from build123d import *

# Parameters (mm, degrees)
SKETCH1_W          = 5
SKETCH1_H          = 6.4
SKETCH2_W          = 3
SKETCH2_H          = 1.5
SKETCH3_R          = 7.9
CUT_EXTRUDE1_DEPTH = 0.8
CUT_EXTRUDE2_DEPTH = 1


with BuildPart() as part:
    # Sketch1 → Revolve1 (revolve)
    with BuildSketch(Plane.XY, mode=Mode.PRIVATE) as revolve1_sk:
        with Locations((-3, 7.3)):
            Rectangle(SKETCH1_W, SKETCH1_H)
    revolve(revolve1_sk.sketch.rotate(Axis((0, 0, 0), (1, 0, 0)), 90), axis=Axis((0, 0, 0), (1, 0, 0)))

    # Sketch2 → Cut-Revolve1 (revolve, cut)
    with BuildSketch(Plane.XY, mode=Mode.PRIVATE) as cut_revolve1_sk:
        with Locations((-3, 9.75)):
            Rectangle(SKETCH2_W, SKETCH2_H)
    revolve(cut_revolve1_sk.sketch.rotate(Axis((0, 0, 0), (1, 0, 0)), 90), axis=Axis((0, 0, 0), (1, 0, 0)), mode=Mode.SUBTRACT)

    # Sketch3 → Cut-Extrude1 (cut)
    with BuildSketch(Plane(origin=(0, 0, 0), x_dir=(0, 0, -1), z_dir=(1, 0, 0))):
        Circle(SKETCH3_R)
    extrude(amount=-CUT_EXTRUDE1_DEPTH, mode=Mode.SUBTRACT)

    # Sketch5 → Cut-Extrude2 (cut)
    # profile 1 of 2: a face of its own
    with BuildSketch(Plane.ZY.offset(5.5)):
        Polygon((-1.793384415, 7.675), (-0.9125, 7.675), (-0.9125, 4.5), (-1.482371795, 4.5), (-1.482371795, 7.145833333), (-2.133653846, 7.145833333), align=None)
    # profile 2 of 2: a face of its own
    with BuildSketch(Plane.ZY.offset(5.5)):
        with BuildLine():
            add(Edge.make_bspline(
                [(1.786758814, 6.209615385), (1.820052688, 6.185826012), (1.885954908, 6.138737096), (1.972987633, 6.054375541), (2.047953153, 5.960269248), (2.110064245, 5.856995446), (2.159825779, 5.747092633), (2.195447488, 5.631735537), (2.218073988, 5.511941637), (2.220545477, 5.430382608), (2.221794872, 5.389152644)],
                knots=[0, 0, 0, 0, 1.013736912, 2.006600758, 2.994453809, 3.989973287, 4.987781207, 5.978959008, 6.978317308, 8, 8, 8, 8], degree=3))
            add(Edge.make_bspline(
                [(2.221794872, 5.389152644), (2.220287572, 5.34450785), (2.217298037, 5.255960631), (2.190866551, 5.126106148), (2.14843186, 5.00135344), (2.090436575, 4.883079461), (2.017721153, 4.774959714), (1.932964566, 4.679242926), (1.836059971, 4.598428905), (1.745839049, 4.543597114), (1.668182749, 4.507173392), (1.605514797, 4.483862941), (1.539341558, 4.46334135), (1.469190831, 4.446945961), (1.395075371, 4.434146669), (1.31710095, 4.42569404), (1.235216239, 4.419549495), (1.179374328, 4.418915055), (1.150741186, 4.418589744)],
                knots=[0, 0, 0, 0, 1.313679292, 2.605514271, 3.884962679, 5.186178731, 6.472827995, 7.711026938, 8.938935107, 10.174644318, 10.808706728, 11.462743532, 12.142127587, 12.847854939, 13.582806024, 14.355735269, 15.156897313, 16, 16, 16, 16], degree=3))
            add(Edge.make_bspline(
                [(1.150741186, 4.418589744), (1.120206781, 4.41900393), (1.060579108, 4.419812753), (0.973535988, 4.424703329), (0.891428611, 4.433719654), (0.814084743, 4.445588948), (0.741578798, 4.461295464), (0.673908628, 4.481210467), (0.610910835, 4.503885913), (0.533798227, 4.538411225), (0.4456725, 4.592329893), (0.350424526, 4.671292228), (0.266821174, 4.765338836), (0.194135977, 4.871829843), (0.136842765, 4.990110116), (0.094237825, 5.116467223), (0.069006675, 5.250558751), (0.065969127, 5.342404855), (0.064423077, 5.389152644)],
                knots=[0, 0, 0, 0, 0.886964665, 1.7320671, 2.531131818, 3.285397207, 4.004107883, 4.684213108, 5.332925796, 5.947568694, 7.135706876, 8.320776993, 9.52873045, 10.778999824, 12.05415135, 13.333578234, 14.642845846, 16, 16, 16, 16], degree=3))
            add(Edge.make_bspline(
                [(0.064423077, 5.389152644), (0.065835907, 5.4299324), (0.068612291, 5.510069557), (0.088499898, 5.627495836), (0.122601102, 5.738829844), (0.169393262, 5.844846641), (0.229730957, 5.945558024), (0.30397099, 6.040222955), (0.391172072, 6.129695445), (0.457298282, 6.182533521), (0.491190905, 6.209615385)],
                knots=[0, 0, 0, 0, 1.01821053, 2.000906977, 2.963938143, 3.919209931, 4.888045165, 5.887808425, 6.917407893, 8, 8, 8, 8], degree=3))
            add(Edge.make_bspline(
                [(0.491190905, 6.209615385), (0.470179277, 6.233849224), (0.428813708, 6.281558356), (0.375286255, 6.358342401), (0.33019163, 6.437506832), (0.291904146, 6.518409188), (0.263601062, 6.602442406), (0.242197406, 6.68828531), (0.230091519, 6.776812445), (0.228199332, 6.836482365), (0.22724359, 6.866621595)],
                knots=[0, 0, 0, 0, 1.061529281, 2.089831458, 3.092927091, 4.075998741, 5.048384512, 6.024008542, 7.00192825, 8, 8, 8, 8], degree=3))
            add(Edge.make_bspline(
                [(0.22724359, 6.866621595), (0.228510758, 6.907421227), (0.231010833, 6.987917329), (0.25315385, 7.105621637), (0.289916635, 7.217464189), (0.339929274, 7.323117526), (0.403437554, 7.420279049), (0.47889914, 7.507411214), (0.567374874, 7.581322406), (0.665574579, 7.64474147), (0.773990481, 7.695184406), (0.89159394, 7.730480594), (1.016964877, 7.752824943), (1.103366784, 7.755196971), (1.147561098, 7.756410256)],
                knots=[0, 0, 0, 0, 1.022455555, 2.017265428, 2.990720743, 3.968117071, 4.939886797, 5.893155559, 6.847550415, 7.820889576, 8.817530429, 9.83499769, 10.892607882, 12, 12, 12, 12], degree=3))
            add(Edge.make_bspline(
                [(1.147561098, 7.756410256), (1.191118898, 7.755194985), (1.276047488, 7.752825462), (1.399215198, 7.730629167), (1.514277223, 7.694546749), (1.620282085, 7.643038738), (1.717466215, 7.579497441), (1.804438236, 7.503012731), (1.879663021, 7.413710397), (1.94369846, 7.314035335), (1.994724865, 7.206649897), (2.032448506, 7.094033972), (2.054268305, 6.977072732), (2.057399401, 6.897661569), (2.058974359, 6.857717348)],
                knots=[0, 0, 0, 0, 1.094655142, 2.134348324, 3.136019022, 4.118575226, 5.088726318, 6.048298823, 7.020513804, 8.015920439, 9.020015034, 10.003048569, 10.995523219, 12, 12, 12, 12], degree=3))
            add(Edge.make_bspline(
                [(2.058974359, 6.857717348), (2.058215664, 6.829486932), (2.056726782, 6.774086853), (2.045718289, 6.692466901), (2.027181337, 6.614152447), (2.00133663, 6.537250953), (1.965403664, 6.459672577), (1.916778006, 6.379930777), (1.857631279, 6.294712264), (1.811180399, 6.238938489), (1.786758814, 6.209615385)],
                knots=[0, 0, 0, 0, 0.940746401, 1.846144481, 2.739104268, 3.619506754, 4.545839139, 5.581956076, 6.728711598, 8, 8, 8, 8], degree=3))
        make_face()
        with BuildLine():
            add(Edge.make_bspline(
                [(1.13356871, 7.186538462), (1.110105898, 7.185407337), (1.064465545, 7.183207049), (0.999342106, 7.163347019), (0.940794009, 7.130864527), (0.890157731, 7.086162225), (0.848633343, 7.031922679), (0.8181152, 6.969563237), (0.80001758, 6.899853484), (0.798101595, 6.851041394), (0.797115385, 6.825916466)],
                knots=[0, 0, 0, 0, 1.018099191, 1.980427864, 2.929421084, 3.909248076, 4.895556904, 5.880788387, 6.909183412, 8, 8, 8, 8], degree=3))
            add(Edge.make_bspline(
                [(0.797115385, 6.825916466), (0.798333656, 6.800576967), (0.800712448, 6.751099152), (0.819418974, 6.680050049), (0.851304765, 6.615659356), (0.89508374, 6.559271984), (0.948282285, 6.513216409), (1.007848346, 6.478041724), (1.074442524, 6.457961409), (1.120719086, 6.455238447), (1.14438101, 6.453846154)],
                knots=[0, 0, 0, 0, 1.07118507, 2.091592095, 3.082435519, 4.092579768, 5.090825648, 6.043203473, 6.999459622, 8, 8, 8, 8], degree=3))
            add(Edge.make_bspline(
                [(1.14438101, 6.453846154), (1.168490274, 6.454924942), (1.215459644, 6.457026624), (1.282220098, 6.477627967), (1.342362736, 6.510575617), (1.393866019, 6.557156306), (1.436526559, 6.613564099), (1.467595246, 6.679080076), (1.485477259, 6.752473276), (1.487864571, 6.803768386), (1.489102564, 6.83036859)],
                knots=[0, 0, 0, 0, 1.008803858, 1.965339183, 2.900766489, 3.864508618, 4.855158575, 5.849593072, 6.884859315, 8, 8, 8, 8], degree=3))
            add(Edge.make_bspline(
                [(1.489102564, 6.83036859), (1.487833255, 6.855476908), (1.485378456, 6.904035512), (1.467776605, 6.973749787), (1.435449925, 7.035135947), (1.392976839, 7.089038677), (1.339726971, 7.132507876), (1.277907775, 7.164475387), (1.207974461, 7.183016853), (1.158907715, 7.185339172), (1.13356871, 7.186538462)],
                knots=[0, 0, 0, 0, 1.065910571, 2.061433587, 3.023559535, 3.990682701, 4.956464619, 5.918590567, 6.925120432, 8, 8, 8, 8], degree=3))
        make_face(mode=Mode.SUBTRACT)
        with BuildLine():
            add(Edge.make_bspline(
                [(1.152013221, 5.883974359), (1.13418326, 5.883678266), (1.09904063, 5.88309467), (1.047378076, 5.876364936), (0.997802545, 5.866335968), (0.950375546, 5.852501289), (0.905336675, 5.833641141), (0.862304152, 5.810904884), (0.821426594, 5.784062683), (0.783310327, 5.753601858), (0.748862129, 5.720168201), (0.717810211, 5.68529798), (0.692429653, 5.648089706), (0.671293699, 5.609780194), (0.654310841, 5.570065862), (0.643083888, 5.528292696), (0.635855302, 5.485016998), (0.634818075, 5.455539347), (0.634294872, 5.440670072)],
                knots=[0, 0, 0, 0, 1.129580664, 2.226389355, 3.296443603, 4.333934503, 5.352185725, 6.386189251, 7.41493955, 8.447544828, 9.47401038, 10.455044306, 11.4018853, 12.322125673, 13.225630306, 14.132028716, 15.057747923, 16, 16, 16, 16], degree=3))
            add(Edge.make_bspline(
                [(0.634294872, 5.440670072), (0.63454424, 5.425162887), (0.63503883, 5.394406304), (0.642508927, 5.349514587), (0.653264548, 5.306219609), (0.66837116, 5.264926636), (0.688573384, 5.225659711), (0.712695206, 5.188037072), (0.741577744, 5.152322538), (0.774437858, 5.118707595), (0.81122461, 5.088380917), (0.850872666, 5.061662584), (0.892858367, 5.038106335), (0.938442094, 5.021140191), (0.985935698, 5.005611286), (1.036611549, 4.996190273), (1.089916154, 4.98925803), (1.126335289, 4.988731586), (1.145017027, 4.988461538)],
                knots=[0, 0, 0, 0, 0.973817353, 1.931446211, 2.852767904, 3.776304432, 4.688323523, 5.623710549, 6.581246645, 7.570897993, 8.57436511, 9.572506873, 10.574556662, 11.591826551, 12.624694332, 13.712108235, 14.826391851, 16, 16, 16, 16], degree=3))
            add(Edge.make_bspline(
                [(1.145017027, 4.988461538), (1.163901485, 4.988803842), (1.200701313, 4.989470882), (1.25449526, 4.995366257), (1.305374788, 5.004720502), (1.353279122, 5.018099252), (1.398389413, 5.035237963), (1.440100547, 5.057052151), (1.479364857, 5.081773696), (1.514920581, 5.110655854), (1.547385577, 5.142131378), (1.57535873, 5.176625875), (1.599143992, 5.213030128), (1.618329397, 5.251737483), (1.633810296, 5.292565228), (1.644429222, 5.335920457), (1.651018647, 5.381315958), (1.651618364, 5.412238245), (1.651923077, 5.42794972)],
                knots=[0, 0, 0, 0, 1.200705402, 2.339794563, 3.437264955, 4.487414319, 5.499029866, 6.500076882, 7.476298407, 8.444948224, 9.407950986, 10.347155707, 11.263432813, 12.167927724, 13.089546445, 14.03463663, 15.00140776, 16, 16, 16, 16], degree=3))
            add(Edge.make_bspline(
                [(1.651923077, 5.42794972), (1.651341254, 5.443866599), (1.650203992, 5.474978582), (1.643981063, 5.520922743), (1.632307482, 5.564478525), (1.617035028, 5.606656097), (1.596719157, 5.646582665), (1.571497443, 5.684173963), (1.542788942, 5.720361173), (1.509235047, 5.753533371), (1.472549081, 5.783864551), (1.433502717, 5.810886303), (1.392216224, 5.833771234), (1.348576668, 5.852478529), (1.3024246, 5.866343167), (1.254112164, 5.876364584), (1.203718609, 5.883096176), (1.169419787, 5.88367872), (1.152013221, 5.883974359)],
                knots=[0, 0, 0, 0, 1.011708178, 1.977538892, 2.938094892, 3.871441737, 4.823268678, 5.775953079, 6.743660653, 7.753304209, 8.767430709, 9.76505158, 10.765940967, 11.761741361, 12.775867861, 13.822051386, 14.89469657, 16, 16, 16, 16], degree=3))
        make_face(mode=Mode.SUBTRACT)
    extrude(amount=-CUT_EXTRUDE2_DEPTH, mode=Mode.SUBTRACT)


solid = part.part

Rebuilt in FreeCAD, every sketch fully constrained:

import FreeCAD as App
import Part
import Sketcher
Q = App.Units.Quantity

doc = App.newDocument("Part")
body = doc.addObject("PartDesign::Body", "Body")

sketch1 = body.newObject("Sketcher::SketchObject", "Sketch")
sketch1.AttachmentSupport = (doc.getObject("XY_Plane"), [""])
sketch1.MapMode = "FlatFace"
sketch1.addGeometry([
    Part.LineSegment(App.Vector(-6, 10, 0), App.Vector(-6, 4, 0)),
    Part.LineSegment(App.Vector(-6, 4, 0), App.Vector(0, 4, 0)),
    Part.LineSegment(App.Vector(0, 4, 0), App.Vector(0, 10, 0)),
    Part.LineSegment(App.Vector(0, 10, 0), App.Vector(-6, 10, 0)),
], False)
sketch1.addConstraint([
    Sketcher.Constraint("Coincident", 0, 2, 1, 1),
    Sketcher.Constraint("Coincident", 1, 2, 2, 1),
    Sketcher.Constraint("Coincident", 2, 2, 3, 1),
    Sketcher.Constraint("Coincident", 3, 2, 0, 1),
    Sketcher.Constraint("Vertical", 0),
    Sketcher.Constraint("Horizontal", 1),
    Sketcher.Constraint("Vertical", 2),
    Sketcher.Constraint("Horizontal", 3),
    Sketcher.Constraint("DistanceX", 1, 1, 1, 2, Q("5 mm")),
    Sketcher.Constraint("DistanceY", 0, 2, 0, 1, Q("6.4 mm")),
    Sketcher.Constraint("DistanceX", 0, 2, -1, 1, Q("5.5 mm")),
    Sketcher.Constraint("DistanceY", -1, 1, 0, 2, Q("4.1 mm")),
])
revolution = body.newObject("PartDesign::Revolution", "Revolution")
revolution.Profile = sketch1
revolution.ReferenceAxis = (sketch1, ["H_Axis"])
revolution.Angle = 360

sketch2 = body.newObject("Sketcher::SketchObject", "Sketch001")
sketch2.AttachmentSupport = (doc.getObject("XY_Plane"), [""])
sketch2.MapMode = "FlatFace"
sketch2.addGeometry([
    Part.LineSegment(App.Vector(-4.5, 10.5, 0), App.Vector(-4.5, 9, 0)),
    Part.LineSegment(App.Vector(-4.5, 9, 0), App.Vector(-1.5, 9, 0)),
    Part.LineSegment(App.Vector(-1.5, 9, 0), App.Vector(-1.5, 10.5, 0)),
    Part.LineSegment(App.Vector(-1.5, 10.5, 0), App.Vector(-4.5, 10.5, 0)),
], False)
sketch2.addConstraint([
    Sketcher.Constraint("Coincident", 0, 2, 1, 1),
    Sketcher.Constraint("Coincident", 1, 2, 2, 1),
    Sketcher.Constraint("Coincident", 2, 2, 3, 1),
    Sketcher.Constraint("Coincident", 3, 2, 0, 1),
    Sketcher.Constraint("Vertical", 0),
    Sketcher.Constraint("Horizontal", 1),
    Sketcher.Constraint("Vertical", 2),
    Sketcher.Constraint("Horizontal", 3),
    Sketcher.Constraint("DistanceX", 1, 1, 1, 2, Q("3 mm")),
    Sketcher.Constraint("DistanceY", 0, 2, 0, 1, Q("1.5 mm")),
    Sketcher.Constraint("DistanceY", -1, 1, 0, 2, Q("9 mm")),
    Sketcher.Constraint("DistanceX", 0, 2, -1, 1, Q("4.5 mm")),
])
groove = body.newObject("PartDesign::Groove", "Groove")
groove.Profile = sketch2
groove.ReferenceAxis = (sketch2, ["H_Axis"])
groove.Angle = 360

sketch3 = body.newObject("Sketcher::SketchObject", "Sketch002")
sketch3.AttachmentSupport = (doc.getObject("YZ_Plane"), [""])
sketch3.MapMode = "FlatFace"
sketch3.addGeometry(Part.Circle(App.Vector(0, 0, 0), App.Vector(0, 0, 1), 8), False)
sketch3.addConstraint([
    Sketcher.Constraint("Coincident", 0, 3, -1, 1),
    Sketcher.Constraint("Diameter", 0, Q("15.8 mm")),
])
pocket1 = body.newObject("PartDesign::Pocket", "Pocket")
pocket1.Profile = sketch3
pocket1.Length = 0.8

sketch4 = body.newObject("Sketcher::SketchObject", "Sketch003")
sketch4.AttachmentSupport = (doc.getObject("YZ_Plane"), [""])
sketch4.MapMode = "FlatFace"
sketch4.AttachmentOffset = App.Placement(App.Vector(0, 0, -5.5), App.Rotation())
sketch4.addGeometry([
    Part.LineSegment(App.Vector(7.675, -0.9125, 0), App.Vector(7.675, -1.793384, 0)),
    Part.LineSegment(App.Vector(7.675, -1.793384, 0), App.Vector(7.145833, -2.133654, 0)),
    Part.LineSegment(App.Vector(7.145833, -2.133654, 0), App.Vector(7.145833, -1.482372, 0)),
    Part.LineSegment(App.Vector(7.145833, -1.482372, 0), App.Vector(4.5, -1.482372, 0)),
    Part.LineSegment(App.Vector(4.5, -1.482372, 0), App.Vector(4.5, -0.9125, 0)),
    Part.LineSegment(App.Vector(4.5, -0.9125, 0), App.Vector(7.675, -0.9125, 0)),
    Part.BSplineCurve([App.Vector(6.209615, 1.786759, 0), App.Vector(6.185826, 1.820053, 0), App.Vector(6.138737, 1.885955, 0), App.Vector(6.054376, 1.972988, 0), App.Vector(5.960269, 2.047953, 0), App.Vector(5.856995, 2.110064, 0), App.Vector(5.747093, 2.159826, 0), App.Vector(5.631736, 2.195447, 0), App.Vector(5.511942, 2.218074, 0), App.Vector(5.430383, 2.220545, 0), App.Vector(5.389153, 2.221795, 0)], [4, 1, 1, 1, 1, 1, 1, 1, 4], [0, 1.013736912, 2.006600758, 2.994453809, 3.989973287, 4.987781207, 5.978959008, 6.978317308, 8], False, 3, [1, 1, 1, 1, 1, 1, 1, 1, 1, 1, 1], False),
    Part.BSplineCurve([App.Vector(6.857717, 2.058974, 0), App.Vector(6.829487, 2.058216, 0), App.Vector(6.774087, 2.056727, 0), App.Vector(6.692467, 2.045718, 0), App.Vector(6.614152, 2.027181, 0), App.Vector(6.537251, 2.001337, 0), App.Vector(6.459673, 1.965404, 0), App.Vector(6.379931, 1.916778, 0), App.Vector(6.294712, 1.857631, 0), App.Vector(6.238938, 1.81118, 0), App.Vector(6.209615, 1.786759, 0)], [4, 1, 1, 1, 1, 1, 1, 1, 4], [0, 0.940746401, 1.846144481, 2.739104268, 3.619506754, 4.545839139, 5.581956076, 6.728711598, 8], False, 3, [1, 1, 1, 1, 1, 1, 1, 1, 1, 1, 1], False),
    Part.BSplineCurve([App.Vector(7.75641, 1.147561, 0), App.Vector(7.755195, 1.191119, 0), App.Vector(7.752825, 1.276047, 0), App.Vector(7.730629, 1.399215, 0), App.Vector(7.694547, 1.514277, 0), App.Vector(7.643039, 1.620282, 0), App.Vector(7.579497, 1.717466, 0), App.Vector(7.503013, 1.804438, 0), App.Vector(7.41371, 1.879663, 0), App.Vector(7.314035, 1.943698, 0), App.Vector(7.20665, 1.994725, 0), App.Vector(7.094034, 2.032449, 0), App.Vector(6.977073, 2.054268, 0), App.Vector(6.897662, 2.057399, 0), App.Vector(6.857717, 2.058974, 0)], [4, 1, 1, 1, 1, 1, 1, 1, 1, 1, 1, 1, 4], [0, 1.094655142, 2.134348324, 3.136019022, 4.118575226, 5.088726318, 6.048298823, 7.020513804, 8.015920439, 9.020015034, 10.003048569, 10.995523219, 12], False, 3, [1, 1, 1, 1, 1, 1, 1, 1, 1, 1, 1, 1, 1, 1, 1], False),
    Part.BSplineCurve([App.Vector(6.866622, 0.227244, 0), App.Vector(6.907421, 0.228511, 0), App.Vector(6.987917, 0.231011, 0), App.Vector(7.105622, 0.253154, 0), App.Vector(7.217464, 0.289917, 0), App.Vector(7.323118, 0.339929, 0), App.Vector(7.420279, 0.403438, 0), App.Vector(7.507411, 0.478899, 0), App.Vector(7.581322, 0.567375, 0), App.Vector(7.644741, 0.665575, 0), App.Vector(7.695184, 0.77399, 0), App.Vector(7.730481, 0.891594, 0), App.Vector(7.752825, 1.016965, 0), App.Vector(7.755197, 1.103367, 0), App.Vector(7.75641, 1.147561, 0)], [4, 1, 1, 1, 1, 1, 1, 1, 1, 1, 1, 1, 4], [0, 1.022455555, 2.017265428, 2.990720743, 3.968117071, 4.939886797, 5.893155559, 6.847550415, 7.820889576, 8.817530429, 9.83499769, 10.892607882, 12], False, 3, [1, 1, 1, 1, 1, 1, 1, 1, 1, 1, 1, 1, 1, 1, 1], False),
    Part.BSplineCurve([App.Vector(6.209615, 0.491191, 0), App.Vector(6.233849, 0.470179, 0), App.Vector(6.281558, 0.428814, 0), App.Vector(6.358342, 0.375286, 0), App.Vector(6.437507, 0.330192, 0), App.Vector(6.518409, 0.291904, 0), App.Vector(6.602442, 0.263601, 0), App.Vector(6.688285, 0.242197, 0), App.Vector(6.776812, 0.230092, 0), App.Vector(6.836482, 0.228199, 0), App.Vector(6.866622, 0.227244, 0)], [4, 1, 1, 1, 1, 1, 1, 1, 4], [0, 1.061529281, 2.089831458, 3.092927091, 4.075998741, 5.048384512, 6.024008542, 7.00192825, 8], False, 3, [1, 1, 1, 1, 1, 1, 1, 1, 1, 1, 1], False),
    Part.BSplineCurve([App.Vector(5.389153, 0.064423, 0), App.Vector(5.429932, 0.065836, 0), App.Vector(5.51007, 0.068612, 0), App.Vector(5.627496, 0.0885, 0), App.Vector(5.73883, 0.122601, 0), App.Vector(5.844847, 0.169393, 0), App.Vector(5.945558, 0.229731, 0), App.Vector(6.040223, 0.303971, 0), App.Vector(6.129695, 0.391172, 0), App.Vector(6.182534, 0.457298, 0), App.Vector(6.209615, 0.491191, 0)], [4, 1, 1, 1, 1, 1, 1, 1, 4], [0, 1.01821053, 2.000906977, 2.963938143, 3.919209931, 4.888045165, 5.887808425, 6.917407893, 8], False, 3, [1, 1, 1, 1, 1, 1, 1, 1, 1, 1, 1], False),
    Part.BSplineCurve([App.Vector(4.41859, 1.150741, 0), App.Vector(4.419004, 1.120207, 0), App.Vector(4.419813, 1.060579, 0), App.Vector(4.424703, 0.973536, 0), App.Vector(4.43372, 0.891429, 0), App.Vector(4.445589, 0.814085, 0), App.Vector(4.461295, 0.741579, 0), App.Vector(4.48121, 0.673909, 0), App.Vector(4.503886, 0.610911, 0), App.Vector(4.538411, 0.533798, 0), App.Vector(4.59233, 0.445673, 0), App.Vector(4.671292, 0.350425, 0), App.Vector(4.765339, 0.266821, 0), App.Vector(4.87183, 0.194136, 0), App.Vector(4.99011, 0.136843, 0), App.Vector(5.116467, 0.094238, 0), App.Vector(5.250559, 0.069007, 0), App.Vector(5.342405, 0.065969, 0), App.Vector(5.389153, 0.064423, 0)], [4, 1, 1, 1, 1, 1, 1, 1, 1, 1, 1, 1, 1, 1, 1, 1, 4], [0, 0.886964665, 1.7320671, 2.531131818, 3.285397207, 4.004107883, 4.684213108, 5.332925796, 5.947568694, 7.135706876, 8.320776993, 9.52873045, 10.778999824, 12.05415135, 13.333578234, 14.642845846, 16], False, 3, [1, 1, 1, 1, 1, 1, 1, 1, 1, 1, 1, 1, 1, 1, 1, 1, 1, 1, 1], False),
    Part.BSplineCurve([App.Vector(5.389153, 2.221795, 0), App.Vector(5.344508, 2.220288, 0), App.Vector(5.255961, 2.217298, 0), App.Vector(5.126106, 2.190867, 0), App.Vector(5.001353, 2.148432, 0), App.Vector(4.883079, 2.090437, 0), App.Vector(4.77496, 2.017721, 0), App.Vector(4.679243, 1.932965, 0), App.Vector(4.598429, 1.83606, 0), App.Vector(4.543597, 1.745839, 0), App.Vector(4.507173, 1.668183, 0), App.Vector(4.483863, 1.605515, 0), App.Vector(4.463341, 1.539342, 0), App.Vector(4.446946, 1.469191, 0), App.Vector(4.434147, 1.395075, 0), App.Vector(4.425694, 1.317101, 0), App.Vector(4.419549, 1.235216, 0), App.Vector(4.418915, 1.179374, 0), App.Vector(4.41859, 1.150741, 0)], [4, 1, 1, 1, 1, 1, 1, 1, 1, 1, 1, 1, 1, 1, 1, 1, 4], [0, 1.313679292, 2.605514271, 3.884962679, 5.186178731, 6.472827995, 7.711026938, 8.938935107, 10.174644318, 10.808706728, 11.462743532, 12.142127587, 12.847854939, 13.582806024, 14.355735269, 15.156897313, 16], False, 3, [1, 1, 1, 1, 1, 1, 1, 1, 1, 1, 1, 1, 1, 1, 1, 1, 1, 1, 1], False),
    Part.BSplineCurve([App.Vector(5.42795, 1.651923, 0), App.Vector(5.443867, 1.651341, 0), App.Vector(5.474979, 1.650204, 0), App.Vector(5.520923, 1.643981, 0), App.Vector(5.564479, 1.632307, 0), App.Vector(5.606656, 1.617035, 0), App.Vector(5.646583, 1.596719, 0), App.Vector(5.684174, 1.571497, 0), App.Vector(5.720361, 1.542789, 0), App.Vector(5.753533, 1.509235, 0), App.Vector(5.783865, 1.472549, 0), App.Vector(5.810886, 1.433503, 0), App.Vector(5.833771, 1.392216, 0), App.Vector(5.852479, 1.348577, 0), App.Vector(5.866343, 1.302425, 0), App.Vector(5.876365, 1.254112, 0), App.Vector(5.883096, 1.203719, 0), App.Vector(5.883679, 1.16942, 0), App.Vector(5.883974, 1.152013, 0)], [4, 1, 1, 1, 1, 1, 1, 1, 1, 1, 1, 1, 1, 1, 1, 1, 4], [0, 1.011708178, 1.977538892, 2.938094892, 3.871441737, 4.823268678, 5.775953079, 6.743660653, 7.753304209, 8.767430709, 9.76505158, 10.765940967, 11.761741361, 12.775867861, 13.822051386, 14.89469657, 16], False, 3, [1, 1, 1, 1, 1, 1, 1, 1, 1, 1, 1, 1, 1, 1, 1, 1, 1, 1, 1], False),
    Part.BSplineCurve([App.Vector(4.988462, 1.145017, 0), App.Vector(4.988804, 1.163901, 0), App.Vector(4.989471, 1.200701, 0), App.Vector(4.995366, 1.254495, 0), App.Vector(5.004721, 1.305375, 0), App.Vector(5.018099, 1.353279, 0), App.Vector(5.035238, 1.398389, 0), App.Vector(5.057052, 1.440101, 0), App.Vector(5.081774, 1.479365, 0), App.Vector(5.110656, 1.514921, 0), App.Vector(5.142131, 1.547386, 0), App.Vector(5.176626, 1.575359, 0), App.Vector(5.21303, 1.599144, 0), App.Vector(5.251737, 1.618329, 0), App.Vector(5.292565, 1.63381, 0), App.Vector(5.33592, 1.644429, 0), App.Vector(5.381316, 1.651019, 0), App.Vector(5.412238, 1.651618, 0), App.Vector(5.42795, 1.651923, 0)], [4, 1, 1, 1, 1, 1, 1, 1, 1, 1, 1, 1, 1, 1, 1, 1, 4], [0, 1.200705402, 2.339794563, 3.437264955, 4.487414319, 5.499029866, 6.500076882, 7.476298407, 8.444948224, 9.407950986, 10.347155707, 11.263432813, 12.167927724, 13.089546445, 14.03463663, 15.00140776, 16], False, 3, [1, 1, 1, 1, 1, 1, 1, 1, 1, 1, 1, 1, 1, 1, 1, 1, 1, 1, 1], False),
    Part.BSplineCurve([App.Vector(5.44067, 0.634295, 0), App.Vector(5.425163, 0.634544, 0), App.Vector(5.394406, 0.635039, 0), App.Vector(5.349515, 0.642509, 0), App.Vector(5.30622, 0.653265, 0), App.Vector(5.264927, 0.668371, 0), App.Vector(5.22566, 0.688573, 0), App.Vector(5.188037, 0.712695, 0), App.Vector(5.152323, 0.741578, 0), App.Vector(5.118708, 0.774438, 0), App.Vector(5.088381, 0.811225, 0), App.Vector(5.061663, 0.850873, 0), App.Vector(5.038106, 0.892858, 0), App.Vector(5.02114, 0.938442, 0), App.Vector(5.005611, 0.985936, 0), App.Vector(4.99619, 1.036612, 0), App.Vector(4.989258, 1.089916, 0), App.Vector(4.988732, 1.126335, 0), App.Vector(4.988462, 1.145017, 0)], [4, 1, 1, 1, 1, 1, 1, 1, 1, 1, 1, 1, 1, 1, 1, 1, 4], [0, 0.973817353, 1.931446211, 2.852767904, 3.776304432, 4.688323523, 5.623710549, 6.581246645, 7.570897993, 8.57436511, 9.572506873, 10.574556662, 11.591826551, 12.624694332, 13.712108235, 14.826391851, 16], False, 3, [1, 1, 1, 1, 1, 1, 1, 1, 1, 1, 1, 1, 1, 1, 1, 1, 1, 1, 1], False),
    Part.BSplineCurve([App.Vector(5.883974, 1.152013, 0), App.Vector(5.883678, 1.134183, 0), App.Vector(5.883095, 1.099041, 0), App.Vector(5.876365, 1.047378, 0), App.Vector(5.866336, 0.997803, 0), App.Vector(5.852501, 0.950376, 0), App.Vector(5.833641, 0.905337, 0), App.Vector(5.810905, 0.862304, 0), App.Vector(5.784063, 0.821427, 0), App.Vector(5.753602, 0.78331, 0), App.Vector(5.720168, 0.748862, 0), App.Vector(5.685298, 0.71781, 0), App.Vector(5.64809, 0.69243, 0), App.Vector(5.60978, 0.671294, 0), App.Vector(5.570066, 0.654311, 0), App.Vector(5.528293, 0.643084, 0), App.Vector(5.485017, 0.635855, 0), App.Vector(5.455539, 0.634818, 0), App.Vector(5.44067, 0.634295, 0)], [4, 1, 1, 1, 1, 1, 1, 1, 1, 1, 1, 1, 1, 1, 1, 1, 4], [0, 1.129580664, 2.226389355, 3.296443603, 4.333934503, 5.352185725, 6.386189251, 7.41493955, 8.447544828, 9.47401038, 10.455044306, 11.4018853, 12.322125673, 13.225630306, 14.132028716, 15.057747923, 16], False, 3, [1, 1, 1, 1, 1, 1, 1, 1, 1, 1, 1, 1, 1, 1, 1, 1, 1, 1, 1], False),
    Part.BSplineCurve([App.Vector(6.830369, 1.489103, 0), App.Vector(6.855477, 1.487833, 0), App.Vector(6.904036, 1.485378, 0), App.Vector(6.97375, 1.467777, 0), App.Vector(7.035136, 1.43545, 0), App.Vector(7.089039, 1.392977, 0), App.Vector(7.132508, 1.339727, 0), App.Vector(7.164475, 1.277908, 0), App.Vector(7.183017, 1.207974, 0), App.Vector(7.185339, 1.158908, 0), App.Vector(7.186538, 1.133569, 0)], [4, 1, 1, 1, 1, 1, 1, 1, 4], [0, 1.065910571, 2.061433587, 3.023559535, 3.990682701, 4.956464619, 5.918590567, 6.925120432, 8], False, 3, [1, 1, 1, 1, 1, 1, 1, 1, 1, 1, 1], False),
    Part.BSplineCurve([App.Vector(6.453846, 1.144381, 0), App.Vector(6.454925, 1.16849, 0), App.Vector(6.457027, 1.21546, 0), App.Vector(6.477628, 1.28222, 0), App.Vector(6.510576, 1.342363, 0), App.Vector(6.557156, 1.393866, 0), App.Vector(6.613564, 1.436527, 0), App.Vector(6.67908, 1.467595, 0), App.Vector(6.752473, 1.485477, 0), App.Vector(6.803768, 1.487865, 0), App.Vector(6.830369, 1.489103, 0)], [4, 1, 1, 1, 1, 1, 1, 1, 4], [0, 1.008803858, 1.965339183, 2.900766489, 3.864508618, 4.855158575, 5.849593072, 6.884859315, 8], False, 3, [1, 1, 1, 1, 1, 1, 1, 1, 1, 1, 1], False),
    Part.BSplineCurve([App.Vector(6.825916, 0.797115, 0), App.Vector(6.800577, 0.798334, 0), App.Vector(6.751099, 0.800712, 0), App.Vector(6.68005, 0.819419, 0), App.Vector(6.615659, 0.851305, 0), App.Vector(6.559272, 0.895084, 0), App.Vector(6.513216, 0.948282, 0), App.Vector(6.478042, 1.007848, 0), App.Vector(6.457961, 1.074443, 0), App.Vector(6.455238, 1.120719, 0), App.Vector(6.453846, 1.144381, 0)], [4, 1, 1, 1, 1, 1, 1, 1, 4], [0, 1.07118507, 2.091592095, 3.082435519, 4.092579768, 5.090825648, 6.043203473, 6.999459622, 8], False, 3, [1, 1, 1, 1, 1, 1, 1, 1, 1, 1, 1], False),
    Part.BSplineCurve([App.Vector(7.186538, 1.133569, 0), App.Vector(7.185407, 1.110106, 0), App.Vector(7.183207, 1.064466, 0), App.Vector(7.163347, 0.999342, 0), App.Vector(7.130865, 0.940794, 0), App.Vector(7.086162, 0.890158, 0), App.Vector(7.031923, 0.848633, 0), App.Vector(6.969563, 0.818115, 0), App.Vector(6.899853, 0.800018, 0), App.Vector(6.851041, 0.798102, 0), App.Vector(6.825916, 0.797115, 0)], [4, 1, 1, 1, 1, 1, 1, 1, 4], [0, 1.018099191, 1.980427864, 2.929421084, 3.909248076, 4.895556904, 5.880788387, 6.909183412, 8], False, 3, [1, 1, 1, 1, 1, 1, 1, 1, 1, 1, 1], False),
], False)
sketch4.addConstraint([
    Sketcher.Constraint("Block", 6),
    Sketcher.Constraint("Block", 7),
    Sketcher.Constraint("Block", 8),
    Sketcher.Constraint("Block", 9),
    Sketcher.Constraint("Block", 10),
    Sketcher.Constraint("Block", 11),
    Sketcher.Constraint("Block", 12),
    Sketcher.Constraint("Block", 13),
    Sketcher.Constraint("Block", 14),
    Sketcher.Constraint("Block", 15),
    Sketcher.Constraint("Block", 16),
    Sketcher.Constraint("Block", 17),
    Sketcher.Constraint("Block", 18),
    Sketcher.Constraint("Block", 19),
    Sketcher.Constraint("Block", 20),
    Sketcher.Constraint("Block", 21),
    Sketcher.Constraint("Coincident", 0, 2, 1, 1),
    Sketcher.Constraint("Coincident", 1, 2, 2, 1),
    Sketcher.Constraint("Coincident", 2, 2, 3, 1),
    Sketcher.Constraint("Coincident", 3, 2, 4, 1),
    Sketcher.Constraint("Coincident", 4, 2, 5, 1),
    Sketcher.Constraint("Coincident", 5, 2, 0, 1),
    Sketcher.Constraint("Vertical", 0),
    Sketcher.Constraint("Vertical", 2),
    Sketcher.Constraint("Horizontal", 3),
    Sketcher.Constraint("Vertical", 4),
    Sketcher.Constraint("Horizontal", 5),
    Sketcher.Constraint("DistanceX", -1, 1, 3, 2, Q("4.5 mm")),
    Sketcher.Constraint("DistanceX", 5, 1, 5, 2, Q("3.175 mm")),
    Sketcher.Constraint("DistanceY", 4, 1, 4, 2, Q("0.569872 mm")),
    Sketcher.Constraint("DistanceY", 4, 2, -1, 1, Q("0.9125 mm")),
    Sketcher.Constraint("DistanceX", 3, 2, 3, 1, Q("2.645833 mm")),
    Sketcher.Constraint("DistanceY", 0, 2, 0, 1, Q("0.880884 mm")),
    Sketcher.Constraint("DistanceY", 2, 1, 2, 2, Q("0.651282 mm")),
])
pocket2 = body.newObject("PartDesign::Pocket", "Pocket001")
pocket2.Profile = sketch4
pocket2.Length = 1
pocket2.Reversed = True

doc.recompute()
